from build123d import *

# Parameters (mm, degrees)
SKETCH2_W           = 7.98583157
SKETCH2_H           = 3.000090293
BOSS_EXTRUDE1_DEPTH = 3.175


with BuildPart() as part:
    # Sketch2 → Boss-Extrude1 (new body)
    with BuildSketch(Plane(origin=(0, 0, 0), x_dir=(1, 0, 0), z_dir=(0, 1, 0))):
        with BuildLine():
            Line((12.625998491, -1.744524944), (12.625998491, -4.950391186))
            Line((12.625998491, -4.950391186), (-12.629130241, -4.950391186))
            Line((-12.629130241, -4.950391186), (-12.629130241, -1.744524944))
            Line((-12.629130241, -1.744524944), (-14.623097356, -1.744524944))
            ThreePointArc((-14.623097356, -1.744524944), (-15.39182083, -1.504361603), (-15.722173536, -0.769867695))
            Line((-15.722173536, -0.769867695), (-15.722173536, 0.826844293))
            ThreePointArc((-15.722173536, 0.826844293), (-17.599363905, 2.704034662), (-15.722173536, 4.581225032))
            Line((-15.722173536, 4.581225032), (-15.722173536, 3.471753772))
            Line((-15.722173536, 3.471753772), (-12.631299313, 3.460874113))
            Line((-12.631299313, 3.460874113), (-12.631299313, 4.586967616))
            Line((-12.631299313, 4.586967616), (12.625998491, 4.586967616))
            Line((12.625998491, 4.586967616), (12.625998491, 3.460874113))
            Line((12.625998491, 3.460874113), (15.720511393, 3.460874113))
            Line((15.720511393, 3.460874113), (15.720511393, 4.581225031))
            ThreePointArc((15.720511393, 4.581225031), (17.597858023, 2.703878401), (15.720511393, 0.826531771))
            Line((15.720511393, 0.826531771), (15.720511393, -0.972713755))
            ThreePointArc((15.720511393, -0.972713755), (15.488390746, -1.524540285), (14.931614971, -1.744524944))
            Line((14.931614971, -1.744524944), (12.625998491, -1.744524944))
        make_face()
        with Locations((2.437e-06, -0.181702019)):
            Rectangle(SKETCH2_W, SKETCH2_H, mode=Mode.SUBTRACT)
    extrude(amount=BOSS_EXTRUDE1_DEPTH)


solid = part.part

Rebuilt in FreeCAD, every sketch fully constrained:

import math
import FreeCAD as App
import Part
import Sketcher
from FreeCAD import Vector
Q = App.Units.Quantity

doc = App.newDocument("Part")
body = doc.addObject("PartDesign::Body", "Body")

sketch1 = body.newObject("Sketcher::SketchObject", "Sketch")
sketch1.AttachmentSupport = (doc.getObject("XZ_Plane"), [""])
sketch1.MapMode = "FlatFace"
sketch1.addGeometry(Part.LineSegment(Vector(12.6, 5, 0), Vector(12.6, 1.7, 0)), False)
sketch1.addGeometry(Part.LineSegment(Vector(12.6, 1.7, 0), Vector(14.9, 1.7, 0)), False)
sketch1.addGeometry(Part.ArcOfCircle(Part.Circle(Vector(14.9, 1, 0), Vector(0, 0, 1), 0.8), math.radians(0), math.radians(91)), False)
sketch1.addGeometry(Part.LineSegment(Vector(15.7, 1, 0), Vector(15.7, -0.8, 0)), False)
sketch1.addGeometry(Part.ArcOfCircle(Part.Circle(Vector(15.7, -2.7, 0), Vector(0, 0, 1), 1.9), math.radians(-90), math.radians(90)), False)
sketch1.addGeometry(Part.LineSegment(Vector(15.7, -4.6, 0), Vector(15.7, -3.5, 0)), False)
sketch1.addGeometry(Part.LineSegment(Vector(15.7, -3.5, 0), Vector(12.6, -3.5, 0)), False)
sketch1.addGeometry(Part.LineSegment(Vector(12.6, -3.5, 0), Vector(12.6, -4.6, 0)), False)
sketch1.addGeometry(Part.LineSegment(Vector(12.6, -4.6, 0), Vector(-12.6, -4.6, 0)), False)
sketch1.addGeometry(Part.LineSegment(Vector(-12.6, -4.6, 0), Vector(-12.6, -3.5, 0)), False)
sketch1.addGeometry(Part.LineSegment(Vector(-12.6, -3.5, 0), Vector(-15.7, -3.5, 0)), False)
sketch1.addGeometry(Part.LineSegment(Vector(-15.7, -3.5, 0), Vector(-15.7, -4.6, 0)), False)
sketch1.addGeometry(Part.ArcOfCircle(Part.Circle(Vector(-15.7, -2.7, 0), Vector(0, 0, 1), 1.9), math.radians(90), math.radians(270)), False)
sketch1.addGeometry(Part.LineSegment(Vector(-15.7, -0.8, 0), Vector(-15.7, 0.8, 0)), False)
sketch1.addGeometry(Part.ArcOfCircle(Part.Circle(Vector(-14.7, 0.8, 0), Vector(0, 0, 1), 1), math.radians(83), math.radians(180)), False)
sketch1.addGeometry(Part.LineSegment(Vector(-14.6, 1.7, 0), Vector(-12.6, 1.7, 0)), False)
sketch1.addGeometry(Part.LineSegment(Vector(-12.6, 1.7, 0), Vector(-12.6, 5, 0)), False)
sketch1.addGeometry(Part.LineSegment(Vector(-12.6, 5, 0), Vector(12.6, 5, 0)), False)
sketch1.addGeometry(Part.LineSegment(Vector(-4, 1.7, 0), Vector(-4, -1.3, 0)), False)
sketch1.addGeometry(Part.LineSegment(Vector(-4, -1.3, 0), Vector(4, -1.3, 0)), False)
sketch1.addGeometry(Part.LineSegment(Vector(4, -1.3, 0), Vector(4, 1.7, 0)), False)
sketch1.addGeometry(Part.LineSegment(Vector(4, 1.7, 0), Vector(-4, 1.7, 0)), False)
sketch1.addConstraint(Sketcher.Constraint("Coincident", 0, 2, 1, 1))
sketch1.addConstraint(Sketcher.Constraint("Coincident", 1, 2, 2, 2))
sketch1.addConstraint(Sketcher.Constraint("Tangent", 2, 1, 3, 1))
sketch1.addConstraint(Sketcher.Constraint("Coincident", 3, 2, 4, 2))
sketch1.addConstraint(Sketcher.Constraint("Coincident", 4, 1, 5, 1))
sketch1.addConstraint(Sketcher.Constraint("Coincident", 5, 2, 6, 1))
sketch1.addConstraint(Sketcher.Constraint("Coincident", 6, 2, 7, 1))
sketch1.addConstraint(Sketcher.Constraint("Coincident", 7, 2, 8, 1))
sketch1.addConstraint(Sketcher.Constraint("Coincident", 8, 2, 9, 1))
sketch1.addConstraint(Sketcher.Constraint("Coincident", 9, 2, 10, 1))
sketch1.addConstraint(Sketcher.Constraint("Coincident", 10, 2, 11, 1))
sketch1.addConstraint(Sketcher.Constraint("Coincident", 11, 2, 12, 2))
sketch1.addConstraint(Sketcher.Constraint("Coincident", 12, 1, 13, 1))
sketch1.addConstraint(Sketcher.Constraint("Tangent", 13, 2, 14, 2))
sketch1.addConstraint(Sketcher.Constraint("Coincident", 14, 1, 15, 1))
sketch1.addConstraint(Sketcher.Constraint("Coincident", 15, 2, 16, 1))
sketch1.addConstraint(Sketcher.Constraint("Coincident", 16, 2, 17, 1))
sketch1.addConstraint(Sketcher.Constraint("Coincident", 17, 2, 0, 1))
sketch1.addConstraint(Sketcher.Constraint("Coincident", 18, 2, 19, 1))
sketch1.addConstraint(Sketcher.Constraint("Coincident", 19, 2, 20, 1))
sketch1.addConstraint(Sketcher.Constraint("Coincident", 20, 2, 21, 1))
sketch1.addConstraint(Sketcher.Constraint("Coincident", 21, 2, 18, 1))
sketch1.addConstraint(Sketcher.Constraint("Vertical", 0))
sketch1.addConstraint(Sketcher.Constraint("Horizontal", 1))
sketch1.addConstraint(Sketcher.Constraint("Vertical", 3))
sketch1.addConstraint(Sketcher.Constraint("Vertical", 5))
sketch1.addConstraint(Sketcher.Constraint("Horizontal", 6))
sketch1.addConstraint(Sketcher.Constraint("Vertical", 7))
sketch1.addConstraint(Sketcher.Constraint("Horizontal", 8))
sketch1.addConstraint(Sketcher.Constraint("Vertical", 9))
sketch1.addConstraint(Sketcher.Constraint("Vertical", 11))
sketch1.addConstraint(Sketcher.Constraint("Vertical", 13))
sketch1.addConstraint(Sketcher.Constraint("Horizontal", 15))
sketch1.addConstraint(Sketcher.Constraint("Vertical", 16))
sketch1.addConstraint(Sketcher.Constraint("Horizontal", 17))
sketch1.addConstraint(Sketcher.Constraint("Vertical", 18))
sketch1.addConstraint(Sketcher.Constraint("Horizontal", 19))
sketch1.addConstraint(Sketcher.Constraint("Vertical", 20))
sketch1.addConstraint(Sketcher.Constraint("Horizontal", 21))
sketch1.addConstraint(Sketcher.Constraint("Horizontal", 6, 2, 9, 2))
sketch1.addConstraint(Sketcher.Constraint("Horizontal", 4, 1, 11, 2))
sketch1.addConstraint(Sketcher.Constraint("Horizontal", 1, 2, 14, 1))
sketch1.addConstraint(Sketcher.Constraint("Vertical", 4, 3, 2, 1))
sketch1.addConstraint(Sketcher.Constraint("Vertical", 3, 2, 4, 1))
sketch1.addConstraint(Sketcher.Constraint("Vertical", 0, 2, 6, 2))
sketch1.addConstraint(Sketcher.Constraint("Vertical", 12, 3, 10, 2))
sketch1.addConstraint(Sketcher.Constraint("Vertical", 11, 2, 12, 1))
sketch1.addConstraint(Sketcher.Constraint("Radius", 14, Q("0.9817 mm")))
sketch1.addConstraint(Sketcher.Constraint("Radius", 12, Q("1.87719 mm")))
sketch1.addConstraint(Sketcher.Constraint("Radius", 2, Q("0.771996 mm")))
sketch1.addConstraint(Sketcher.Constraint("Radius", 4, Q("1.877347 mm")))
sketch1.addConstraint(Sketcher.Constraint("DistanceX", 17, 1, 17, 2, Q("25.255129 mm")))
sketch1.addConstraint(Sketcher.Constraint("DistanceX", 19, 1, 19, 2, Q("7.985832 mm")))
sketch1.addConstraint(Sketcher.Constraint("DistanceY", 5, 1, 5, 2, Q("1.120351 mm")))
sketch1.addConstraint(Sketcher.Constraint("DistanceY", 11, 2, 11, 1, Q("1.109471 mm")))
sketch1.addConstraint(Sketcher.Constraint("DistanceY", 13, 1, 13, 2, Q("1.596712 mm")))
sketch1.addConstraint(Sketcher.Constraint("DistanceY", 18, 2, 18, 1, Q("3.00009 mm")))
sketch1.addConstraint(Sketcher.Constraint("DistanceX", -1, 1, 0, 2, Q("12.625998 mm")))
sketch1.addConstraint(Sketcher.Constraint("DistanceX", 8, 2, -1, 1, Q("12.631299 mm")))
sketch1.addConstraint(Sketcher.Constraint("DistanceX", 1, 2, 2, 3, Q("0.0169 mm")))
sketch1.addConstraint(Sketcher.Constraint("DistanceY", 9, 2, 15, 2, Q("5.205399 mm")))
sketch1.addConstraint(Sketcher.Constraint("DistanceX", 1, 1, 1, 2, Q("2.305616 mm")))
sketch1.addConstraint(Sketcher.Constraint("DistanceX", 15, 1, 15, 2, Q("1.993967 mm")))
sketch1.addConstraint(Sketcher.Constraint("DistanceY", 0, 2, 0, 1, Q("3.205866 mm")))
sketch1.addConstraint(Sketcher.Constraint("DistanceY", 7, 2, 7, 1, Q("1.126094 mm")))
sketch1.addConstraint(Sketcher.Constraint("DistanceY", 4, 3, -1, 1, Q("2.703878 mm")))
sketch1.addConstraint(Sketcher.Constraint("DistanceX", -1, 1, 19, 2, Q("3.992918 mm")))
sketch1.addConstraint(Sketcher.Constraint("DistanceY", 9, 2, 18, 2, Q("2.142531 mm")))
pad1 = body.newObject("PartDesign::Pad", "Pad")
pad1.Profile = sketch1
pad1.Length = Q("0.125 in")
pad1.Reversed = True

doc.recompute()
